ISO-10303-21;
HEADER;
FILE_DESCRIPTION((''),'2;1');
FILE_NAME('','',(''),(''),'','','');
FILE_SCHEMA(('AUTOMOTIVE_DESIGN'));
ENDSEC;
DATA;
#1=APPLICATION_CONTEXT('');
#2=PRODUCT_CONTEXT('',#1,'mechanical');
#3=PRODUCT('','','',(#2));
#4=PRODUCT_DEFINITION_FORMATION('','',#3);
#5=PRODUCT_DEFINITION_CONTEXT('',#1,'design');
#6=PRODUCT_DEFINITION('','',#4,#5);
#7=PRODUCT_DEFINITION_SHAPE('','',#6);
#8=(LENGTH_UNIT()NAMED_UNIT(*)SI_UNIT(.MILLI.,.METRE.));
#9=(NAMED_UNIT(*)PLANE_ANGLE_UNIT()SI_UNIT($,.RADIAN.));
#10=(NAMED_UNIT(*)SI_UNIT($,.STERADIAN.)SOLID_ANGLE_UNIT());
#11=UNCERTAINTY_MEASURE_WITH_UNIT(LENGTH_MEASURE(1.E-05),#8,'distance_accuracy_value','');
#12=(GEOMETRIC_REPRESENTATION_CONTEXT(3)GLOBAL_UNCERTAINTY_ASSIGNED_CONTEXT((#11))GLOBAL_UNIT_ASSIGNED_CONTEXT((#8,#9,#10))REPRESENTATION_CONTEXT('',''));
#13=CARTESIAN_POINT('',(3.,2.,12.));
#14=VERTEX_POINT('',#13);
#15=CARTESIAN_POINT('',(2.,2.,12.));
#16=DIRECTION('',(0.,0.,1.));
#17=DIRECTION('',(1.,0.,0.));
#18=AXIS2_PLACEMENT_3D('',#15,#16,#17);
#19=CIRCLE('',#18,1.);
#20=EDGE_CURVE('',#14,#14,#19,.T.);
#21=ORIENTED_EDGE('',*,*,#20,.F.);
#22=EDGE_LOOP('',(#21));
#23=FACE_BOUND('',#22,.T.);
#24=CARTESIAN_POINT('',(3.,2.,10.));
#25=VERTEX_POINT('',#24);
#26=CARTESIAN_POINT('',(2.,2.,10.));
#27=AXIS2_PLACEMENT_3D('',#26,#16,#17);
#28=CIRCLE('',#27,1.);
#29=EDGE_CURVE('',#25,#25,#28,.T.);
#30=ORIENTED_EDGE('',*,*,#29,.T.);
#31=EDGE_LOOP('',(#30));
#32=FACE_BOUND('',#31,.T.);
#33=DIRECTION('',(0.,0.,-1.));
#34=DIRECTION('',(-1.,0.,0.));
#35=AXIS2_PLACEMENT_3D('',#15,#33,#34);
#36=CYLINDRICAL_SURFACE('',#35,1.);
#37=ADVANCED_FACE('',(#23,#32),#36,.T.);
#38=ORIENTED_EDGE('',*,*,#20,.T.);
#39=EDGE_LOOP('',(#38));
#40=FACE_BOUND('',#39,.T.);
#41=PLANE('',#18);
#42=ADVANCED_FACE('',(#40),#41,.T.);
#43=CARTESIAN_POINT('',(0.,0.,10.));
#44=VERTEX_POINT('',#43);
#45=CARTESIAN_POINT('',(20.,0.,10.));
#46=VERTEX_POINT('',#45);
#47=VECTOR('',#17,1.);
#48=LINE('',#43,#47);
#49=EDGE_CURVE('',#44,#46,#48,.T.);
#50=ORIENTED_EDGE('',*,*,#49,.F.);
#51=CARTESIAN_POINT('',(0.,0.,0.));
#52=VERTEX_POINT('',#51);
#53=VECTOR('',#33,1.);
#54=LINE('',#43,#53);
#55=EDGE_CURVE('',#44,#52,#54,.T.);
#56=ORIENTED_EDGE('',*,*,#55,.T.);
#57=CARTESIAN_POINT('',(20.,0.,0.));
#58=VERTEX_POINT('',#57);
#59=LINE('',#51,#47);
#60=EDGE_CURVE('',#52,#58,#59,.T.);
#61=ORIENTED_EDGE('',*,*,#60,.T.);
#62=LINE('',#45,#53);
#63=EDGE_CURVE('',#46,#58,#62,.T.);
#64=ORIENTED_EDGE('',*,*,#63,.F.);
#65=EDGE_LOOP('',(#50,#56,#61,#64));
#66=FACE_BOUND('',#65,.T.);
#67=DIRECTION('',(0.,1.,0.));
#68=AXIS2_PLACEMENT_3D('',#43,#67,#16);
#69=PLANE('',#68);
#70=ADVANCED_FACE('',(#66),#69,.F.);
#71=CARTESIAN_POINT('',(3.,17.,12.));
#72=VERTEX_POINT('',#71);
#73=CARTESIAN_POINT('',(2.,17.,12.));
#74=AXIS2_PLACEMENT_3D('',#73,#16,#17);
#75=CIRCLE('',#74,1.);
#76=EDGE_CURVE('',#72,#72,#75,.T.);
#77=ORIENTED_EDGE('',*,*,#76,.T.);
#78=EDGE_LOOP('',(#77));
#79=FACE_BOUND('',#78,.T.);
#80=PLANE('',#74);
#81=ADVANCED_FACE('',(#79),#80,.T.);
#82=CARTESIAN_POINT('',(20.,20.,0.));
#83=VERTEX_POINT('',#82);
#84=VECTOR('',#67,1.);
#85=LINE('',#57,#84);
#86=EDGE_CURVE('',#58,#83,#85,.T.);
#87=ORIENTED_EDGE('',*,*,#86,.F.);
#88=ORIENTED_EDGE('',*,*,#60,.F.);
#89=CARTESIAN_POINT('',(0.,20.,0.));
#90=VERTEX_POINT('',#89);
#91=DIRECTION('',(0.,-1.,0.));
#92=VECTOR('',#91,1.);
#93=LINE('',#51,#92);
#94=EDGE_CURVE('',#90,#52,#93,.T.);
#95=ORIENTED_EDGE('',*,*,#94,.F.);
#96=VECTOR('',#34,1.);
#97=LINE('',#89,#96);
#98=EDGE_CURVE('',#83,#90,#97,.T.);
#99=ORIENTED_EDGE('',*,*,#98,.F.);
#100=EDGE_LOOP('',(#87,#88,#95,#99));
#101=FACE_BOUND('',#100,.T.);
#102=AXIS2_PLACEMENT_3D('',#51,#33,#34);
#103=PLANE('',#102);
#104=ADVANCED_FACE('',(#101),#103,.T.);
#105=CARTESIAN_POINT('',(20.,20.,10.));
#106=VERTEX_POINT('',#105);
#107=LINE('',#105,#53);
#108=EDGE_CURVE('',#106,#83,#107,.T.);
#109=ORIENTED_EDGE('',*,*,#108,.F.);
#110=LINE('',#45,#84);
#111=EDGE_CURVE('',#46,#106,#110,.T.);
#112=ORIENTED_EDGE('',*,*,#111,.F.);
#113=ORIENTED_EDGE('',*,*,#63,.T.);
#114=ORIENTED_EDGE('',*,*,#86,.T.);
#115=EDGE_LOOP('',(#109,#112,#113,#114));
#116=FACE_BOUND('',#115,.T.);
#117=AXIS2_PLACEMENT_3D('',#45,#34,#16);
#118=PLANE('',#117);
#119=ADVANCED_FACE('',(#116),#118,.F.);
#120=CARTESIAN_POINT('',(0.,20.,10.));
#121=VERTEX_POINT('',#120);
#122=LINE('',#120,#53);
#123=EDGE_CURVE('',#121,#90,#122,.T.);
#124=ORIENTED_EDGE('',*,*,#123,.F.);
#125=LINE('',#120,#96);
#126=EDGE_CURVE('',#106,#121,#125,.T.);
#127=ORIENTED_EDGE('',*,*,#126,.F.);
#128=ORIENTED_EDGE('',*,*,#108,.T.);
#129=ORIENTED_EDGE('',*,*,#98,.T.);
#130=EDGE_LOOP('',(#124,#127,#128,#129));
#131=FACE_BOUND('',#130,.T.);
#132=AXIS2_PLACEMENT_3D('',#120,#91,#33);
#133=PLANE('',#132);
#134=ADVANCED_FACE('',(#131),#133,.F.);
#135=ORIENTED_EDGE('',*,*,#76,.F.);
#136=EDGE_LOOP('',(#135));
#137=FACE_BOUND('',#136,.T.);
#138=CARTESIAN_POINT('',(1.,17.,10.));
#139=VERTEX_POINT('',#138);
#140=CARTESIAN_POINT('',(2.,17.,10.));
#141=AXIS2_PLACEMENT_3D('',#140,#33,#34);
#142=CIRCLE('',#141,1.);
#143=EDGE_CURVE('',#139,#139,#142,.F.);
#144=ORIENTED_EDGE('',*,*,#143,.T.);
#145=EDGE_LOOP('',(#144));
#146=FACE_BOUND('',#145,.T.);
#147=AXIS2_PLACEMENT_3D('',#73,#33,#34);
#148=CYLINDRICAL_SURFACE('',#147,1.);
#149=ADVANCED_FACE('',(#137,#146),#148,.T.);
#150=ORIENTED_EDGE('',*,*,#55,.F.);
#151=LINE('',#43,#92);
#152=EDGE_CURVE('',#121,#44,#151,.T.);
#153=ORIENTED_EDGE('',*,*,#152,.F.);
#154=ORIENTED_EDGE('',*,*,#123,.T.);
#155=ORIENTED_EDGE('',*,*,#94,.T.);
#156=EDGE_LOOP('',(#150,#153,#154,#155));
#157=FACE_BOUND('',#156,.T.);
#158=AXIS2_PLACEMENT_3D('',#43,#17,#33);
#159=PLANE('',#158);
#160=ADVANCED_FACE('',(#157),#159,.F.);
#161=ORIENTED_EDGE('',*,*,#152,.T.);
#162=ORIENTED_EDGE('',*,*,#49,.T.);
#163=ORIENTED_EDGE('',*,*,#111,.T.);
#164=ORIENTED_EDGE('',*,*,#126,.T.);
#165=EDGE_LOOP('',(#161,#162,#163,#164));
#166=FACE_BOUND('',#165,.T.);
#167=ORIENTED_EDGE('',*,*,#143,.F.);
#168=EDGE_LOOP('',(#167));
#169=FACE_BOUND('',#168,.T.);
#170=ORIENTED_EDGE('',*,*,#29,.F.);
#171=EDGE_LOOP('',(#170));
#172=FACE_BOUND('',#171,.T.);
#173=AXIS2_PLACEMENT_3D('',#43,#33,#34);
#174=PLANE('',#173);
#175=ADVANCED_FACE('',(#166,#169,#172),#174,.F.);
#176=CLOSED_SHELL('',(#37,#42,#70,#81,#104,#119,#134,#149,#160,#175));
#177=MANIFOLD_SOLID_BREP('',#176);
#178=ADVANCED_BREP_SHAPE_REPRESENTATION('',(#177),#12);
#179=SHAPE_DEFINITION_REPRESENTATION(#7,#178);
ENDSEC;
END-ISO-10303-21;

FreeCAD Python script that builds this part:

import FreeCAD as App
import Part
import Sketcher


def add_polygon(sketch, points):
    """Adds a closed chain of lines whose ends are joined by coincident constraints."""
    first, n = sketch.GeometryCount, len(points)
    for a, b in zip(points, points[1:] + points[:1]):
        sketch.addGeometry(Part.LineSegment(App.Vector(*a, 0), App.Vector(*b, 0)), False)
    for i in range(n):
        sketch.addConstraint(Sketcher.Constraint("Coincident", first + i, 2, first + (i + 1) % n, 1))

doc = App.newDocument("Part")
body = doc.addObject("PartDesign::Body", "Body")

sketch1 = body.newObject("Sketcher::SketchObject", "Sketch")
sketch1.AttachmentSupport = (doc.getObject("XY_Plane"), [""])
sketch1.MapMode = "FlatFace"
add_polygon(sketch1, [(0, 20), (0, 0), (20, 0), (20, 20)])
sketch1.addConstraint(Sketcher.Constraint("Vertical", 0))
sketch1.addConstraint(Sketcher.Constraint("Horizontal", 1))
sketch1.addConstraint(Sketcher.Constraint("Vertical", 2))
sketch1.addConstraint(Sketcher.Constraint("Horizontal", 3))
sketch1.addConstraint(Sketcher.Constraint("Coincident", 0, 2, -1, 1))
sketch1.addConstraint(Sketcher.Constraint("Equal", 3, 0))
sketch1.addConstraint(Sketcher.Constraint("DistanceX", 1, 1, 1, 2, 20.0))
pad1 = body.newObject("PartDesign::Pad", "Pad")
pad1.Profile = sketch1
pad1.Length = 10

sketch2 = body.newObject("Sketcher::SketchObject", "Sketch001")
sketch2.AttachmentSupport = (doc.getObject("XY_Plane"), [""])
sketch2.MapMode = "FlatFace"
sketch2.AttachmentOffset = App.Placement(App.Vector(0, 0, 10), App.Rotation())
sketch2.addGeometry(Part.Circle(App.Vector(2, 2, 0), App.Vector(0, 0, 1), 1), False)
sketch2.addConstraint(Sketcher.Constraint("Diameter", 0, 2.0))
sketch2.addConstraint(Sketcher.Constraint("DistanceX", -1, 1, 0, 3, 2.0))
sketch2.addConstraint(Sketcher.Constraint("DistanceY", -1, 1, 0, 3, 2.0))
pad2 = body.newObject("PartDesign::Pad", "Pad001")
pad2.Profile = sketch2
pad2.Length = 2
doc.recompute()

linearpattern = body.newObject("PartDesign::LinearPattern", "LinearPattern")
linearpattern.Originals = [pad2]
linearpattern.Direction = (doc.getObject("Y_Axis"), [""])
linearpattern.Mode = "offset"
linearpattern.Offset = 15
linearpattern.Occurrences = 2
body.Tip = linearpattern

doc.recompute()
